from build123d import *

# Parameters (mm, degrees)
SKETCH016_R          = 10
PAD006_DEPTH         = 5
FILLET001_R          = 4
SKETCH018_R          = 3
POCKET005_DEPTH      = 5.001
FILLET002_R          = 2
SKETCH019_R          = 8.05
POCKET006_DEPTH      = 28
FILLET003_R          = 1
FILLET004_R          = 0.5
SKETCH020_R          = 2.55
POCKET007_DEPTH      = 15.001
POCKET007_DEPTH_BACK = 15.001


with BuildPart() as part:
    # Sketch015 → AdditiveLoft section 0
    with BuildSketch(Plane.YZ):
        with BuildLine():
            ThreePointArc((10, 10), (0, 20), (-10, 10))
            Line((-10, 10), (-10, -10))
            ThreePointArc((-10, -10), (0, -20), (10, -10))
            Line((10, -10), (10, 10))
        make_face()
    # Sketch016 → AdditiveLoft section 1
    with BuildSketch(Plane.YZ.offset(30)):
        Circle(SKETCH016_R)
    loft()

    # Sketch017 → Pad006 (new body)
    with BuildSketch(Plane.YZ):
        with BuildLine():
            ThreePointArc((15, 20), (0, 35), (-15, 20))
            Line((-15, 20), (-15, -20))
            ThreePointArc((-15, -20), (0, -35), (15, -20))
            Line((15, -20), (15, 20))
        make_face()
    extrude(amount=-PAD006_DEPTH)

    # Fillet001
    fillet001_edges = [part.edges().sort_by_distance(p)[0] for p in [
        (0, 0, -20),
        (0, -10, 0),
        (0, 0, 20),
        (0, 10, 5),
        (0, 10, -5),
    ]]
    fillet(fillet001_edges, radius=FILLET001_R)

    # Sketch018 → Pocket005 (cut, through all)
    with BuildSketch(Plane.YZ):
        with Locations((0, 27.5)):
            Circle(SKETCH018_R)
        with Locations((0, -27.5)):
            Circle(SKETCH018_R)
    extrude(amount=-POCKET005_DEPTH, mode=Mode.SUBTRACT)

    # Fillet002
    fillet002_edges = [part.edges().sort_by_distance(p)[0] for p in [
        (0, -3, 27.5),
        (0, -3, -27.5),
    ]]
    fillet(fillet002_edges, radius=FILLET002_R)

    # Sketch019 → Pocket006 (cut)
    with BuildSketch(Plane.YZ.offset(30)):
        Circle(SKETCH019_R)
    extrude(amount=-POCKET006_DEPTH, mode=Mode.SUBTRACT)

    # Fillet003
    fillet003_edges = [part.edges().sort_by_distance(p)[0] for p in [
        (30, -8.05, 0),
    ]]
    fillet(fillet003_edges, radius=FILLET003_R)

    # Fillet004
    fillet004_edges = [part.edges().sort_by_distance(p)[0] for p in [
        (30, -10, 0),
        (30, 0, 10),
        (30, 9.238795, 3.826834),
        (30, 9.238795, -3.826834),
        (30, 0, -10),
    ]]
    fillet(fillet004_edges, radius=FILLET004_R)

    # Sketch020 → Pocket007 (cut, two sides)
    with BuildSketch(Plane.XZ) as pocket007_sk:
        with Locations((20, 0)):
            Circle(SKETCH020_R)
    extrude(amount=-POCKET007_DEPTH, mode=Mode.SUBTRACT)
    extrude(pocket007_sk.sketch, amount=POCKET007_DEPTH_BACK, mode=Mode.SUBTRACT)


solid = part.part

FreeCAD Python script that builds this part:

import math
import FreeCAD as App
import Part
import Sketcher

V = App.Vector
Q = App.Units.Quantity


def edges_at(feature, points):
    """Names of the edges that pass closest to the given points."""
    edges = feature.Shape.Edges
    near = lambda p: min(range(len(edges)), key=lambda i: edges[i].distToShape(Part.Vertex(*p))[0])
    return sorted({f"Edge{near(p) + 1}" for p in points})

doc = App.newDocument("Part")
params = doc.addObject("Spreadsheet::Sheet", "Params")
for row, (alias, value) in enumerate([
    ("sketch1_radius", "10 mm"),
    ("sketch1_height", "20 mm"),
    ("sketch2_diameter", "20 mm"),
    ("sketch3_radius", "15 mm"),
    ("sketch3_height", "40 mm"),
    ("pad1_length", "5 mm"),
    ("fillet_radius", "4 mm"),
    ("sketch4_diameter", "6 mm"),
    ("fillet2_radius", "2 mm"),
    ("sketch5_diameter", "16.1 mm"),
    ("pocket2_length", "28 mm"),
    ("fillet3_radius", "1 mm"),
    ("fillet4_radius", "0.5 mm"),
    ("sketch6_diameter", "5.1 mm"),
], start=1):
    params.set(f"A{row}", alias)
    params.set(f"B{row}", "=" + value)
    params.setAlias(f"B{row}", alias)

body = doc.addObject("PartDesign::Body", "Body")

# Sketch on YZ plane
sketch1 = body.newObject("Sketcher::SketchObject", "Sketch")
sketch1.AttachmentSupport = (doc.getObject("YZ_Plane"), [""])
sketch1.MapMode = "FlatFace"
sketch1.addGeometry([
    Part.ArcOfCircle(Part.Circle(V(0, 10, 0), V(0, 0, 1), 10), math.radians(0), math.radians(180)),
    Part.LineSegment(V(-10, 10, 0), V(-10, -10, 0)),
    Part.ArcOfCircle(Part.Circle(V(0, -10, 0), V(0, 0, 1), 10), math.radians(180), math.radians(360)),
    Part.LineSegment(V(10, -10, 0), V(10, 10, 0)),
], False)
sketch1.addConstraint([
    Sketcher.Constraint("Tangent", 0, 2, 1, 1),
    Sketcher.Constraint("Tangent", 1, 2, 2, 1),
    Sketcher.Constraint("Tangent", 2, 2, 3, 1),
    Sketcher.Constraint("Tangent", 3, 2, 0, 1),
    Sketcher.Constraint("Vertical", 1),
    Sketcher.Constraint("Vertical", 3),
    Sketcher.Constraint("Symmetric", 0, 3, 2, 3, -1, 1),
    Sketcher.Constraint("Radius", 0, Q("10 mm")),
    Sketcher.Constraint("DistanceY", 1, 2, 1, 1, Q("20 mm")),
])
sketch1.setExpression("Constraints[7]", "Params.sketch1_radius")
sketch1.setExpression("Constraints[8]", "Params.sketch1_height")

# Sketch on YZ plane
sketch2 = body.newObject("Sketcher::SketchObject", "Sketch001")
sketch2.AttachmentSupport = (doc.getObject("YZ_Plane"), [""])
sketch2.MapMode = "FlatFace"
sketch2.AttachmentOffset = App.Placement(V(0, 0, 30), App.Rotation())
sketch2.addGeometry(Part.Circle(V(0, 0, 0), V(0, 0, 1), 10), False)
sketch2.addConstraint([
    Sketcher.Constraint("Coincident", 0, 3, -1, 1),
    Sketcher.Constraint("Diameter", 0, Q("20 mm")),
])
sketch2.setExpression("Constraints[1]", "Params.sketch2_diameter")

additiveloft = body.newObject("PartDesign::AdditiveLoft", "AdditiveLoft")
additiveloft.Profile = sketch1
additiveloft.Sections = [sketch2]

# Sketch on YZ plane
sketch3 = body.newObject("Sketcher::SketchObject", "Sketch002")
sketch3.AttachmentSupport = (doc.getObject("YZ_Plane"), [""])
sketch3.MapMode = "FlatFace"
sketch3.addGeometry([
    Part.ArcOfCircle(Part.Circle(V(0, 20, 0), V(0, 0, 1), 15), math.radians(0), math.radians(180)),
    Part.LineSegment(V(-15, 20, 0), V(-15, -20, 0)),
    Part.ArcOfCircle(Part.Circle(V(0, -20, 0), V(0, 0, 1), 15), math.radians(180), math.radians(360)),
    Part.LineSegment(V(15, -20, 0), V(15, 20, 0)),
], False)
sketch3.addConstraint([
    Sketcher.Constraint("Tangent", 0, 2, 1, 1),
    Sketcher.Constraint("Tangent", 1, 2, 2, 1),
    Sketcher.Constraint("Tangent", 2, 2, 3, 1),
    Sketcher.Constraint("Tangent", 3, 2, 0, 1),
    Sketcher.Constraint("Vertical", 1),
    Sketcher.Constraint("Vertical", 3),
    Sketcher.Constraint("Symmetric", 0, 3, 2, 3, -1, 1),
    Sketcher.Constraint("Radius", 0, Q("15 mm")),
    Sketcher.Constraint("DistanceY", 1, 2, 1, 1, Q("40 mm")),
])
sketch3.setExpression("Constraints[7]", "Params.sketch3_radius")
sketch3.setExpression("Constraints[8]", "Params.sketch3_height")
pad1 = body.newObject("PartDesign::Pad", "Pad")
pad1.Profile = sketch3
pad1.setExpression("Length", "Params.pad1_length")
pad1.Reversed = True
doc.recompute()

fillet = body.newObject("PartDesign::Fillet", "Fillet")
fillet.Base = (pad1, edges_at(pad1, [
    (0, 0, -20),
    (0, -10, 0),
    (0, 0, 20),
    (0, 10, 5),
    (0, 10, -5),
]))
fillet.setExpression("Radius", "Params.fillet_radius")

# Sketch on YZ plane
sketch4 = body.newObject("Sketcher::SketchObject", "Sketch003")
sketch4.AttachmentSupport = (doc.getObject("YZ_Plane"), [""])
sketch4.MapMode = "FlatFace"
sketch4.addGeometry([
    Part.Circle(V(0, 27.5, 0), V(0, 0, 1), 3),
    Part.Circle(V(0, -27.5, 0), V(0, 0, 1), 3),
], False)
sketch4.addConstraint([
    Sketcher.Constraint("Equal", 0, 1),
    Sketcher.Constraint("Symmetric", 0, 3, 1, 3, -1, 1),
    Sketcher.Constraint("PointOnObject", 0, 3, -2),
    Sketcher.Constraint("Diameter", 0, Q("6 mm")),
    Sketcher.Constraint("DistanceY", 1, 3, 0, 3, Q("55 mm")),
])
sketch4.setExpression("Constraints[3]", "Params.sketch4_diameter")
pocket1 = body.newObject("PartDesign::Pocket", "Pocket")
pocket1.Profile = sketch4
pocket1.Type = "ThroughAll"
doc.recompute()

fillet2 = body.newObject("PartDesign::Fillet", "Fillet001")
fillet2.Base = (pocket1, edges_at(pocket1, [(0, -3, 27.5), (0, -3, -27.5)]))
fillet2.setExpression("Radius", "Params.fillet2_radius")

# Sketch on YZ plane
sketch5 = body.newObject("Sketcher::SketchObject", "Sketch004")
sketch5.AttachmentSupport = (doc.getObject("YZ_Plane"), [""])
sketch5.MapMode = "FlatFace"
sketch5.AttachmentOffset = App.Placement(V(0, 0, 30), App.Rotation())
sketch5.addGeometry(Part.Circle(V(0, 0, 0), V(0, 0, 1), 8), False)
sketch5.addConstraint([
    Sketcher.Constraint("Coincident", 0, 3, -1, 1),
    Sketcher.Constraint("Diameter", 0, Q("16.1 mm")),
])
sketch5.setExpression("Constraints[1]", "Params.sketch5_diameter")
pocket2 = body.newObject("PartDesign::Pocket", "Pocket001")
pocket2.Profile = sketch5
pocket2.setExpression("Length", "Params.pocket2_length")
doc.recompute()

fillet3 = body.newObject("PartDesign::Fillet", "Fillet002")
fillet3.Base = (pocket2, edges_at(pocket2, [(30, -8.05, 0)]))
fillet3.setExpression("Radius", "Params.fillet3_radius")
doc.recompute()

fillet4 = body.newObject("PartDesign::Fillet", "Fillet003")
fillet4.Base = (fillet3, edges_at(fillet3, [
    (30, -10, 0),
    (30, 0, 10),
    (30, 9.239, 3.827),
    (30, 9.239, -3.827),
    (30, 0, -10),
]))
fillet4.setExpression("Radius", "Params.fillet4_radius")

# Sketch on XZ plane
sketch6 = body.newObject("Sketcher::SketchObject", "Sketch005")
sketch6.AttachmentSupport = (doc.getObject("XZ_Plane"), [""])
sketch6.MapMode = "FlatFace"
sketch6.addGeometry(Part.Circle(V(20, 0, 0), V(0, 0, 1), 2.5), False)
sketch6.addConstraint([
    Sketcher.Constraint("PointOnObject", 0, 3, -1),
    Sketcher.Constraint("Diameter", 0, Q("5.1 mm")),
    Sketcher.Constraint("DistanceX", -1, 1, 0, 3, Q("20 mm")),
])
sketch6.setExpression("Constraints[1]", "Params.sketch6_diameter")
pocket3 = body.newObject("PartDesign::Pocket", "Pocket002")
pocket3.Profile = sketch6
pocket3.Type = "ThroughAll"
pocket3.Midplane = True

doc.recompute()
